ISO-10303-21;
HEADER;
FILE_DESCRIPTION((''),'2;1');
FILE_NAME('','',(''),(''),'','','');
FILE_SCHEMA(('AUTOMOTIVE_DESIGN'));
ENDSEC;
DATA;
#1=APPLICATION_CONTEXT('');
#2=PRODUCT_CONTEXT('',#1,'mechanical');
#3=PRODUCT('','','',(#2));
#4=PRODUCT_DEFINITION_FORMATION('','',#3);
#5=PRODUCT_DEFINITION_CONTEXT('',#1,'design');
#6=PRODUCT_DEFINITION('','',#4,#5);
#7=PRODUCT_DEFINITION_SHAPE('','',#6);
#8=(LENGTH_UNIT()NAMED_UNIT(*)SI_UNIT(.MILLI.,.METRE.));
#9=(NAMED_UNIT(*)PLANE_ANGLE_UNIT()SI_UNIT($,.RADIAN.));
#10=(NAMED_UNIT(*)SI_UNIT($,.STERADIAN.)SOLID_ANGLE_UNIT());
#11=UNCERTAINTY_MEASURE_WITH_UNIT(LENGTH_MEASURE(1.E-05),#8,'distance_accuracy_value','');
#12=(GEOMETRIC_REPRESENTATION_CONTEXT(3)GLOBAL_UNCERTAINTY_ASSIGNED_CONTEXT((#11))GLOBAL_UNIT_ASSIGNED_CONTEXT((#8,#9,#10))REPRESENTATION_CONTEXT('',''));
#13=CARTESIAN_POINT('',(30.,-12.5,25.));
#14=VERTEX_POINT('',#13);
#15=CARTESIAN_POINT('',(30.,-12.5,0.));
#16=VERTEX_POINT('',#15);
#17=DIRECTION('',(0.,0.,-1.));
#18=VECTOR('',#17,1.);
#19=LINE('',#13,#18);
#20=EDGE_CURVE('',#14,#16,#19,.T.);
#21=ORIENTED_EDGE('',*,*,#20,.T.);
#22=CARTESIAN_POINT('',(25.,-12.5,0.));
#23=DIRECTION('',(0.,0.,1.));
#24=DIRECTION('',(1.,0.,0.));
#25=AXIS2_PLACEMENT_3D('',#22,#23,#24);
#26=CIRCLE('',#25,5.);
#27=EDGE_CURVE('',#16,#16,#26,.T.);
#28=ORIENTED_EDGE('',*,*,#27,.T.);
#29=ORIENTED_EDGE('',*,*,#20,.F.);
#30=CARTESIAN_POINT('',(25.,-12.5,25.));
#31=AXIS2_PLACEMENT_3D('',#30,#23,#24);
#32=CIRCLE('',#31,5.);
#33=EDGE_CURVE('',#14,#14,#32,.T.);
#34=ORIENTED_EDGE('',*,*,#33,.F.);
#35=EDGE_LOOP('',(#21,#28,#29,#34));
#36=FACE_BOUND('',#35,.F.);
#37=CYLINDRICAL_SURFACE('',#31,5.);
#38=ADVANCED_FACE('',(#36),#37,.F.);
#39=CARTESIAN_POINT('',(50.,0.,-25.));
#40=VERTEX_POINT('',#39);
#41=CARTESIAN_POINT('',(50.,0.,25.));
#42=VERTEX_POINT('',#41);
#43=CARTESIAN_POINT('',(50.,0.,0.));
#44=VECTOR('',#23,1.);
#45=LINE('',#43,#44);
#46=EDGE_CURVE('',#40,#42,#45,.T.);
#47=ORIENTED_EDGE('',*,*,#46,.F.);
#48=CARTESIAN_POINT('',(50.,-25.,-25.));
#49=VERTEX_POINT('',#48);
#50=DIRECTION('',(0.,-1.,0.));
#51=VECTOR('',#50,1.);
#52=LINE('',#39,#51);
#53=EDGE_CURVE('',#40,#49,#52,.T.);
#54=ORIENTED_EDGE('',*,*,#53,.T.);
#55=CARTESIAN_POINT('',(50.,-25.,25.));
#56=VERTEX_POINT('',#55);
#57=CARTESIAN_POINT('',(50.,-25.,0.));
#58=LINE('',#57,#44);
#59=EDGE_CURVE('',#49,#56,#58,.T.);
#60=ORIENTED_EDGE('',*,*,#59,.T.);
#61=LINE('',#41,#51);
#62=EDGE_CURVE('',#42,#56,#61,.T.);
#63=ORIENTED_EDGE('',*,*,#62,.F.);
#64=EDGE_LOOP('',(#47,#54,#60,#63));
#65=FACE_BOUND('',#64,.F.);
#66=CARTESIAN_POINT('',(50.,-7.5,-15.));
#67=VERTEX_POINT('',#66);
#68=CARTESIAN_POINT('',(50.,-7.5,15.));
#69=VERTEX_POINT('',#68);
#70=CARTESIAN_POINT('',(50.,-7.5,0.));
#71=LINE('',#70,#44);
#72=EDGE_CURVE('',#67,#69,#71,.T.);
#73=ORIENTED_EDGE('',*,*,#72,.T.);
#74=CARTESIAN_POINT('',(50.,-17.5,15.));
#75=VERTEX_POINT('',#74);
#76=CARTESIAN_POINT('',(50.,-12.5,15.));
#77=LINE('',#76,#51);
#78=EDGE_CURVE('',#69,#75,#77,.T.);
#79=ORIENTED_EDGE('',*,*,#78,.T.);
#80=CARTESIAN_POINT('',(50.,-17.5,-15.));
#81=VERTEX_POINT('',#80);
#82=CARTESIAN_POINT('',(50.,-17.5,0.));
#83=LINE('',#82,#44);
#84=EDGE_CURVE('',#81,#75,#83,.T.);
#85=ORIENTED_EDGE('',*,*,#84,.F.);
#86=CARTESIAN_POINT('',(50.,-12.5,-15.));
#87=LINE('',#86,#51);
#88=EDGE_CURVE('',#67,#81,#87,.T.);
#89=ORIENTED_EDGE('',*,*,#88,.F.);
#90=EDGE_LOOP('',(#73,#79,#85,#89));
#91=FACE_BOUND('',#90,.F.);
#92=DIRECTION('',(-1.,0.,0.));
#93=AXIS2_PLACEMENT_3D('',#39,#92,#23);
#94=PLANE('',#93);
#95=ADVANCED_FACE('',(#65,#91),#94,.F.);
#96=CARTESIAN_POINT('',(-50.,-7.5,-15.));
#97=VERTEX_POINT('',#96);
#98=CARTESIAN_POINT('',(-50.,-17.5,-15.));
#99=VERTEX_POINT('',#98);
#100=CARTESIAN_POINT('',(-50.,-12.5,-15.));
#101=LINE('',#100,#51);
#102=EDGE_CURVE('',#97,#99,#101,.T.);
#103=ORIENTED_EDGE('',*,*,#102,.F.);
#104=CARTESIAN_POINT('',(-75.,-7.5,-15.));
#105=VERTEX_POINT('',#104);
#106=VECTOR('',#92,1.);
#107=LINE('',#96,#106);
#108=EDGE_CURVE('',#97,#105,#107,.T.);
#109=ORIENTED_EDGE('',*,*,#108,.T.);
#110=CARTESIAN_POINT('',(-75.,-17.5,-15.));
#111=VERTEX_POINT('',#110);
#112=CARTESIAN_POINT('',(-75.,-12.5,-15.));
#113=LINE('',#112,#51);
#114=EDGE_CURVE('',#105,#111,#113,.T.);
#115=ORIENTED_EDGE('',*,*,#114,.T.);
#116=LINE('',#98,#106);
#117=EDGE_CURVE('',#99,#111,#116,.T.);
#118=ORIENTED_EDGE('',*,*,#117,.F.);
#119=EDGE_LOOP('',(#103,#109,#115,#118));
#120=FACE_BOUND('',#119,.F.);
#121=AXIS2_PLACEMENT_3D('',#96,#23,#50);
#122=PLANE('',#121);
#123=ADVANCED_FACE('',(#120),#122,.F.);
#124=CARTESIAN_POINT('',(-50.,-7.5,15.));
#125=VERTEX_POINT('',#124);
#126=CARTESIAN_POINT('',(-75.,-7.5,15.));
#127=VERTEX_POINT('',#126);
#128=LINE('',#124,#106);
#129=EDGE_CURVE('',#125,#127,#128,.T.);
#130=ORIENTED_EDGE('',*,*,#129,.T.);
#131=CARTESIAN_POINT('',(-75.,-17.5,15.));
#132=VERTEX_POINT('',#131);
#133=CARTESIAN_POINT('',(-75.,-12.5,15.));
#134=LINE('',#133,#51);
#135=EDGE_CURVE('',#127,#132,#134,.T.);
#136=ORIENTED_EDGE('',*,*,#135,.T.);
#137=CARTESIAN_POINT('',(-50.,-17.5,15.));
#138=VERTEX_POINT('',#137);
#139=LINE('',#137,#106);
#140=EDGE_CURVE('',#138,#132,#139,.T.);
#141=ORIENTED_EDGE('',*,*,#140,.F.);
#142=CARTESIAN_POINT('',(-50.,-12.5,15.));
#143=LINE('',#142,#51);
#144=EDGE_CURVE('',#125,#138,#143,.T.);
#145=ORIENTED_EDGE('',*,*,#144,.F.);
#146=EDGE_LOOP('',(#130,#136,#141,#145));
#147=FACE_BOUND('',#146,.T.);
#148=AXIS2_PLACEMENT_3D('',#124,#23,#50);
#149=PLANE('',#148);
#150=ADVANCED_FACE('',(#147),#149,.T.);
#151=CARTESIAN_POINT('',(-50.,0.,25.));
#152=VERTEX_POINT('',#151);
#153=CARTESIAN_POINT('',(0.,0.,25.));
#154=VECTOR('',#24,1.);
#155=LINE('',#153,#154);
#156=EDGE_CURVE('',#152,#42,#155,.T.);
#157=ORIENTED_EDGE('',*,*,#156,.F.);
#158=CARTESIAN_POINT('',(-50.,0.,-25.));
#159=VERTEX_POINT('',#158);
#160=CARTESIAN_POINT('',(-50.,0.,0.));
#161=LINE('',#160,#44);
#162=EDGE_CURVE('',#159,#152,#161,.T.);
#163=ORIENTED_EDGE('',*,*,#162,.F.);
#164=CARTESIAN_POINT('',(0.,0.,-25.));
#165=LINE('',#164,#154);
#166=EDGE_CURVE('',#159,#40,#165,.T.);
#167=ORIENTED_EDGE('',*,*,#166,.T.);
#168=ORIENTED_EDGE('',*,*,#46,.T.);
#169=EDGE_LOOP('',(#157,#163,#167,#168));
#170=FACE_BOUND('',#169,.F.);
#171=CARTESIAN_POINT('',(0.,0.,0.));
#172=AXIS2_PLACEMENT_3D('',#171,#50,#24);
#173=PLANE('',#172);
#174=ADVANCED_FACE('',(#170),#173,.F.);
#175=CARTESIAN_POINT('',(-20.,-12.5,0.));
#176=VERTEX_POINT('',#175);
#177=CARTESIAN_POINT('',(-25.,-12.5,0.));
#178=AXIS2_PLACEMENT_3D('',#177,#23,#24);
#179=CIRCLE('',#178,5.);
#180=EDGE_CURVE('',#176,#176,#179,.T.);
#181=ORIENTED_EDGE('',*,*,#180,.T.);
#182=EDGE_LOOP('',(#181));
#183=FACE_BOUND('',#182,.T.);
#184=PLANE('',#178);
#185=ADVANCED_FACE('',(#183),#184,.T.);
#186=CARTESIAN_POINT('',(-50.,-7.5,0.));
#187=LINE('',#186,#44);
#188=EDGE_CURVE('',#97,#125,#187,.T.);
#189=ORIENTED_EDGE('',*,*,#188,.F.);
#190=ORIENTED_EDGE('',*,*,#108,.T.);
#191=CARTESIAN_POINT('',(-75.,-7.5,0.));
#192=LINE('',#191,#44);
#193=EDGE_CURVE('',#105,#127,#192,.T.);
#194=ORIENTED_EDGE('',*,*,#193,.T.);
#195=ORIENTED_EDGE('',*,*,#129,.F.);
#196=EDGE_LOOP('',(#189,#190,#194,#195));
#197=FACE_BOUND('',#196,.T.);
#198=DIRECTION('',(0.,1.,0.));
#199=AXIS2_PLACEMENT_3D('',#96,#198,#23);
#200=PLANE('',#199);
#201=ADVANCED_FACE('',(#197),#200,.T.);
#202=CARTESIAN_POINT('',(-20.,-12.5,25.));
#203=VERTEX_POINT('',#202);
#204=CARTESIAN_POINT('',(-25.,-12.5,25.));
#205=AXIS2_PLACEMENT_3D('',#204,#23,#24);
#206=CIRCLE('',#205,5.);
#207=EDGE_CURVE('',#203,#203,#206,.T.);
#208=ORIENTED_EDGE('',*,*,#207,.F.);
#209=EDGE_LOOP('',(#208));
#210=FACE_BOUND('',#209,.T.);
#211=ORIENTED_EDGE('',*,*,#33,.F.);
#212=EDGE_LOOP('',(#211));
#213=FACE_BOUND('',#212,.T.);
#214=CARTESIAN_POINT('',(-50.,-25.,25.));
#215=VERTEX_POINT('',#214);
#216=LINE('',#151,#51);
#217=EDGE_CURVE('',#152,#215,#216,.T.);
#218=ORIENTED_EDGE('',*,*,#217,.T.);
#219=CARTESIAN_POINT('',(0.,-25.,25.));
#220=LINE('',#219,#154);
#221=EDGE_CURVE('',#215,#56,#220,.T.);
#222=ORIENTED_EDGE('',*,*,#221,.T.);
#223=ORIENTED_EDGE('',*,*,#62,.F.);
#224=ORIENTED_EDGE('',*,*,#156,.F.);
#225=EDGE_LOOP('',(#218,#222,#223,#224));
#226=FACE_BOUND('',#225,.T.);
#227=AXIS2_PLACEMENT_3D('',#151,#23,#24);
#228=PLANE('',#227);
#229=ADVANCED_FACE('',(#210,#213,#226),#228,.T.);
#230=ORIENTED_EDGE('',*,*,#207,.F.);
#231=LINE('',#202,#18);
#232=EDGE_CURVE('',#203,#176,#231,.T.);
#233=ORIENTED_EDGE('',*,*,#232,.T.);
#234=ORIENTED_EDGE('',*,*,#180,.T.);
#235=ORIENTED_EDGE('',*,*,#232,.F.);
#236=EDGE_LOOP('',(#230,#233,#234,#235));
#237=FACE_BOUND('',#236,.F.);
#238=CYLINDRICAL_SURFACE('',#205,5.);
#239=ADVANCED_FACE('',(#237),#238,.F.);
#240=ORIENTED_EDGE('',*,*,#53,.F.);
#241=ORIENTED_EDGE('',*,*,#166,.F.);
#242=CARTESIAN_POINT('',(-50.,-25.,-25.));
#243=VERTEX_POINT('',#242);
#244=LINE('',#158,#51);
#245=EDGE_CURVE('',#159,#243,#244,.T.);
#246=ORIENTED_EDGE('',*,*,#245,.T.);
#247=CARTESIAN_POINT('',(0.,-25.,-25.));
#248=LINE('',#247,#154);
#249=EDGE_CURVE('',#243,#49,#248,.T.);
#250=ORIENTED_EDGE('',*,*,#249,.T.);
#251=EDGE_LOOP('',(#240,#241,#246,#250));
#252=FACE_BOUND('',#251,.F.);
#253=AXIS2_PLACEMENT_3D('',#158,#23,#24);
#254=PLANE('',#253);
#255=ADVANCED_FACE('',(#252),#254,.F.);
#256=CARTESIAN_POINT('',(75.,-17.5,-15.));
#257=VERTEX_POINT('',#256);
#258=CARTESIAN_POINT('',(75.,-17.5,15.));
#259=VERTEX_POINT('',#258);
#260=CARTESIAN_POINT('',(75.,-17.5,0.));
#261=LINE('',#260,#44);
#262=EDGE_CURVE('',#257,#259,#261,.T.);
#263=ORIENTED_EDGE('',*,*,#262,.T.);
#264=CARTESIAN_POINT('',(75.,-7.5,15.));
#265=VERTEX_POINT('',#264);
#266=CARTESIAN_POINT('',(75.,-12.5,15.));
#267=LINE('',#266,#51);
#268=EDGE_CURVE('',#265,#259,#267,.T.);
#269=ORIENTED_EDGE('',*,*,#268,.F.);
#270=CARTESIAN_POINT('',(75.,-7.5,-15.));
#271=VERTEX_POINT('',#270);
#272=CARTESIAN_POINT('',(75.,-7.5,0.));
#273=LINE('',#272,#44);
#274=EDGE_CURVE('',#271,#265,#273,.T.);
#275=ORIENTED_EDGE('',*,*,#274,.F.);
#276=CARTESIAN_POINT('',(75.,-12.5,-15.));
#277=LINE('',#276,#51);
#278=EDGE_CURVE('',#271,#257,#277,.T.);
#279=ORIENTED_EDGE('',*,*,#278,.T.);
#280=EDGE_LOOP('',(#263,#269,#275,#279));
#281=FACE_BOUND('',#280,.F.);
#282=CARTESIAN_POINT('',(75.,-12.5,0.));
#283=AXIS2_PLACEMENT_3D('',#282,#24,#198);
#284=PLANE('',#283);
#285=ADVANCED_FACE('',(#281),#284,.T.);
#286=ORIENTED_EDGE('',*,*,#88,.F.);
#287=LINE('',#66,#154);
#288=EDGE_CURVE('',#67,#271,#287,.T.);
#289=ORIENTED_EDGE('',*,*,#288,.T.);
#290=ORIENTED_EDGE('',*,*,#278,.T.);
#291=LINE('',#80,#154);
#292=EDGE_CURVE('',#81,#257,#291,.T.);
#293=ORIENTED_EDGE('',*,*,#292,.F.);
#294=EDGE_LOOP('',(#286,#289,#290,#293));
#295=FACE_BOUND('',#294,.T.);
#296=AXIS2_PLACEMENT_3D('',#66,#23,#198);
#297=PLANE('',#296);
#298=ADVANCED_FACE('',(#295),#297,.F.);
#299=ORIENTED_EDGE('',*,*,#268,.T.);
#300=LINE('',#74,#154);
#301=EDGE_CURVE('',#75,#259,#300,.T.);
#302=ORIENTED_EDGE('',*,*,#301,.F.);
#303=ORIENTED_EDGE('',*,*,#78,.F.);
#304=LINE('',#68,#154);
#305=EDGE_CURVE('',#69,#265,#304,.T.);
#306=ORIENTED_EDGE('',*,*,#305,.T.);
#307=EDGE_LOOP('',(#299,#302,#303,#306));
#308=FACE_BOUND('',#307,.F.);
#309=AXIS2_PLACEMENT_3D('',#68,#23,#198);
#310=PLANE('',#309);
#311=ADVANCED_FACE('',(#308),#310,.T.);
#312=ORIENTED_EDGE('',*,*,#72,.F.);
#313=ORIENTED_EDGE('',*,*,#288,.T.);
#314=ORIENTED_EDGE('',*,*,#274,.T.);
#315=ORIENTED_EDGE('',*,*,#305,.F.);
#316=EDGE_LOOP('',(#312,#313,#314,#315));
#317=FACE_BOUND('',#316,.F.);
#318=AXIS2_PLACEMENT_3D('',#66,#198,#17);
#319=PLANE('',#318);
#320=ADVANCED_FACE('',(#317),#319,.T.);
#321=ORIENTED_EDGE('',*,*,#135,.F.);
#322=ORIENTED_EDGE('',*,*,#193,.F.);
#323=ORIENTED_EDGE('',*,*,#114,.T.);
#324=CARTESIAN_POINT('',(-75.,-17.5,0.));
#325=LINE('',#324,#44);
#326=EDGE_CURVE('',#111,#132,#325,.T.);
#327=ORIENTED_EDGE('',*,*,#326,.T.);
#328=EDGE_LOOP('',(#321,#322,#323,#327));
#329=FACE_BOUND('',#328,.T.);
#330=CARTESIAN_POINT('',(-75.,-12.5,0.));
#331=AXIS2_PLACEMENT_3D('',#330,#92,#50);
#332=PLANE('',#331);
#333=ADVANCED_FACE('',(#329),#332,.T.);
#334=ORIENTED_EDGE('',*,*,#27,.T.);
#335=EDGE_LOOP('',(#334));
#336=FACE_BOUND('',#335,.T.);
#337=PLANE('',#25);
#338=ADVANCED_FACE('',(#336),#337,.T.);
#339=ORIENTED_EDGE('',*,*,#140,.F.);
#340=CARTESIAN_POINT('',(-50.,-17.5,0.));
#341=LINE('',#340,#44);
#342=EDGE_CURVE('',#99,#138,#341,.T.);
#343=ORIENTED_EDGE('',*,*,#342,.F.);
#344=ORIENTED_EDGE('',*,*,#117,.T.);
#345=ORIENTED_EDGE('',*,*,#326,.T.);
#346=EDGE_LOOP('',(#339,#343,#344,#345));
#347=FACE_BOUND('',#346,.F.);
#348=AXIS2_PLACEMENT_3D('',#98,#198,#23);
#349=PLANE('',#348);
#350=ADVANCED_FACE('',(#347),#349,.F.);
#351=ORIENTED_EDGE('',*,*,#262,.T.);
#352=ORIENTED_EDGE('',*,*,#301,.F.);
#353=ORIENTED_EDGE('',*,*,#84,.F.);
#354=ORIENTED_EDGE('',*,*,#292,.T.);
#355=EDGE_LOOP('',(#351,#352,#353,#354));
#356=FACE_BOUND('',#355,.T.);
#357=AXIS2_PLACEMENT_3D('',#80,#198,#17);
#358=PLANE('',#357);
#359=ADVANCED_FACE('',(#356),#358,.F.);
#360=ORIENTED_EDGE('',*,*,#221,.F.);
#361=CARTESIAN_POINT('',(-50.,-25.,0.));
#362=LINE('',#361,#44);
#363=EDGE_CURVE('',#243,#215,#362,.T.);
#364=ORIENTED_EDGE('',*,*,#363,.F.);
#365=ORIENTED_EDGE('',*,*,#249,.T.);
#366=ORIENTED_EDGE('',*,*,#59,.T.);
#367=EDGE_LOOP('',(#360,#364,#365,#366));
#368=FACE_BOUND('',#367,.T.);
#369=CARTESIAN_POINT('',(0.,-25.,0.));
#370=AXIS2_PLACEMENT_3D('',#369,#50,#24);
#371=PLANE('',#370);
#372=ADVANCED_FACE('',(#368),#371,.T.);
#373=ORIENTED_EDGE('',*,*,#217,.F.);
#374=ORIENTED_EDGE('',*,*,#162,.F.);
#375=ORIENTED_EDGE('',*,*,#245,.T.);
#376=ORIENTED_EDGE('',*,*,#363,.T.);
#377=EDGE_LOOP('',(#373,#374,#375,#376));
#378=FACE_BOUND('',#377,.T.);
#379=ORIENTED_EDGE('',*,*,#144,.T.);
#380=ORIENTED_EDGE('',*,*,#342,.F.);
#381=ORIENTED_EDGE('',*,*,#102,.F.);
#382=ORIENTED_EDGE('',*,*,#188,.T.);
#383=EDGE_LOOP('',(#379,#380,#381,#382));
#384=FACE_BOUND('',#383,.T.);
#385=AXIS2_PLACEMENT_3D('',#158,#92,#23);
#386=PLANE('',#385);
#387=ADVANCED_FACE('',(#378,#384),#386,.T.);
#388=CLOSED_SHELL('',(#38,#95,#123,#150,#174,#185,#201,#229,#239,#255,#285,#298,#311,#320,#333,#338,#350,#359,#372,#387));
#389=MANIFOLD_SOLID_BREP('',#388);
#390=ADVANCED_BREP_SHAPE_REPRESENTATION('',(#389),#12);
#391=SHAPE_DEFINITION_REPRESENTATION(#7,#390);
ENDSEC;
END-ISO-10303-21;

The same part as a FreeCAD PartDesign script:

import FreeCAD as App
import Part
import Sketcher
from FreeCAD import Vector
Q = App.Units.Quantity

doc = App.newDocument("Part")
body = doc.addObject("PartDesign::Body", "Body")

sketch1 = body.newObject("Sketcher::SketchObject", "Sketch")
sketch1.AttachmentSupport = (doc.getObject("XZ_Plane"), [""])
sketch1.MapMode = "FlatFace"
sketch1.addGeometry(Part.LineSegment(Vector(-50, 25, 0), Vector(-50, -25, 0)), False)
sketch1.addGeometry(Part.LineSegment(Vector(-50, -25, 0), Vector(50, -25, 0)), False)
sketch1.addGeometry(Part.LineSegment(Vector(50, -25, 0), Vector(50, 25, 0)), False)
sketch1.addGeometry(Part.LineSegment(Vector(50, 25, 0), Vector(-50, 25, 0)), False)
sketch1.addConstraint(Sketcher.Constraint("Coincident", 0, 2, 1, 1))
sketch1.addConstraint(Sketcher.Constraint("Coincident", 1, 2, 2, 1))
sketch1.addConstraint(Sketcher.Constraint("Coincident", 2, 2, 3, 1))
sketch1.addConstraint(Sketcher.Constraint("Coincident", 3, 2, 0, 1))
sketch1.addConstraint(Sketcher.Constraint("Vertical", 0))
sketch1.addConstraint(Sketcher.Constraint("Horizontal", 1))
sketch1.addConstraint(Sketcher.Constraint("Vertical", 2))
sketch1.addConstraint(Sketcher.Constraint("Horizontal", 3))
sketch1.addConstraint(Sketcher.Constraint("Symmetric", 0, 2, 2, 2, -1, 1))
sketch1.addConstraint(Sketcher.Constraint("DistanceX", 1, 1, 1, 2, Q("100 mm")))
sketch1.addConstraint(Sketcher.Constraint("DistanceY", 0, 2, 0, 1, Q("50 mm")))
pad1 = body.newObject("PartDesign::Pad", "Pad")
pad1.Profile = sketch1
pad1.Length = 25

sketch2 = body.newObject("Sketcher::SketchObject", "Sketch001")
sketch2.AttachmentSupport = (doc.getObject("YZ_Plane"), [""])
sketch2.MapMode = "FlatFace"
sketch2.AttachmentOffset = App.Placement(Vector(0, 0, -50), App.Rotation())
sketch2.addGeometry(Part.LineSegment(Vector(-8, 15, 0), Vector(-8, -15, 0)), False)
sketch2.addGeometry(Part.LineSegment(Vector(-8, -15, 0), Vector(-18, -15, 0)), False)
sketch2.addGeometry(Part.LineSegment(Vector(-18, -15, 0), Vector(-18, 15, 0)), False)
sketch2.addGeometry(Part.LineSegment(Vector(-18, 15, 0), Vector(-8, 15, 0)), False)
sketch2.addConstraint(Sketcher.Constraint("Coincident", 0, 2, 1, 1))
sketch2.addConstraint(Sketcher.Constraint("Coincident", 1, 2, 2, 1))
sketch2.addConstraint(Sketcher.Constraint("Coincident", 2, 2, 3, 1))
sketch2.addConstraint(Sketcher.Constraint("Coincident", 3, 2, 0, 1))
sketch2.addConstraint(Sketcher.Constraint("Vertical", 0))
sketch2.addConstraint(Sketcher.Constraint("Horizontal", 1))
sketch2.addConstraint(Sketcher.Constraint("Vertical", 2))
sketch2.addConstraint(Sketcher.Constraint("Horizontal", 3))
sketch2.addConstraint(Sketcher.Constraint("DistanceX", 1, 2, 1, 1, Q("10 mm")))
sketch2.addConstraint(Sketcher.Constraint("DistanceY", 0, 2, 0, 1, Q("30 mm")))
sketch2.addConstraint(Sketcher.Constraint("DistanceY", 0, 2, -1, 1, Q("15 mm")))
sketch2.addConstraint(Sketcher.Constraint("DistanceX", 0, 2, -1, 1, Q("7.5 mm")))
pad2 = body.newObject("PartDesign::Pad", "Pad001")
pad2.Profile = sketch2
pad2.Length = 25
pad2.Reversed = True
body2 = doc.addObject("PartDesign::Body", "Body001")
doc.recompute()

body2.BaseFeature = body
doc.recompute()

mirroring = doc.addObject("Part::Mirroring", "Mirroring")
mirroring.Source = body
mirroring.Base = Vector(0, 0, 0)
mirroring.Normal = Vector(1, 0, 0)
body3 = doc.addObject("PartDesign::Body", "Body002")
body3.BaseFeature = mirroring
boolean = body2.newObject("PartDesign::Boolean", "Boolean")
boolean.Type = "Fuse"
boolean.addObjects([body3])
doc.recompute()

sketch3 = body2.newObject("Sketcher::SketchObject", "Sketch002")
sketch3.AttachmentSupport = (doc.getObject("XY_Plane001"), [""])
sketch3.MapMode = "FlatFace"
sketch3.AttachmentOffset = App.Placement(Vector(0, 0, 25), App.Rotation())
sketch3.addGeometry(Part.Circle(Vector(-25, -12, 0), Vector(0, 0, 1), 5), False)
sketch3.addGeometry(Part.Circle(Vector(25, -12, 0), Vector(0, 0, 1), 5), False)
sketch3.addConstraint(Sketcher.Constraint("Equal", 0, 1))
sketch3.addConstraint(Sketcher.Constraint("Symmetric", 0, 3, 1, 3, -2))
sketch3.addConstraint(Sketcher.Constraint("Diameter", 0, Q("10 mm")))
sketch3.addConstraint(Sketcher.Constraint("DistanceX", 0, 3, -1, 1, Q("25 mm")))
sketch3.addConstraint(Sketcher.Constraint("DistanceY", 0, 3, -1, 1, Q("12.5 mm")))
pocket1 = body2.newObject("PartDesign::Pocket", "Pocket")
pocket1.Profile = sketch3
pocket1.Length = 25
mirroring.Visibility = False

doc.recompute()
